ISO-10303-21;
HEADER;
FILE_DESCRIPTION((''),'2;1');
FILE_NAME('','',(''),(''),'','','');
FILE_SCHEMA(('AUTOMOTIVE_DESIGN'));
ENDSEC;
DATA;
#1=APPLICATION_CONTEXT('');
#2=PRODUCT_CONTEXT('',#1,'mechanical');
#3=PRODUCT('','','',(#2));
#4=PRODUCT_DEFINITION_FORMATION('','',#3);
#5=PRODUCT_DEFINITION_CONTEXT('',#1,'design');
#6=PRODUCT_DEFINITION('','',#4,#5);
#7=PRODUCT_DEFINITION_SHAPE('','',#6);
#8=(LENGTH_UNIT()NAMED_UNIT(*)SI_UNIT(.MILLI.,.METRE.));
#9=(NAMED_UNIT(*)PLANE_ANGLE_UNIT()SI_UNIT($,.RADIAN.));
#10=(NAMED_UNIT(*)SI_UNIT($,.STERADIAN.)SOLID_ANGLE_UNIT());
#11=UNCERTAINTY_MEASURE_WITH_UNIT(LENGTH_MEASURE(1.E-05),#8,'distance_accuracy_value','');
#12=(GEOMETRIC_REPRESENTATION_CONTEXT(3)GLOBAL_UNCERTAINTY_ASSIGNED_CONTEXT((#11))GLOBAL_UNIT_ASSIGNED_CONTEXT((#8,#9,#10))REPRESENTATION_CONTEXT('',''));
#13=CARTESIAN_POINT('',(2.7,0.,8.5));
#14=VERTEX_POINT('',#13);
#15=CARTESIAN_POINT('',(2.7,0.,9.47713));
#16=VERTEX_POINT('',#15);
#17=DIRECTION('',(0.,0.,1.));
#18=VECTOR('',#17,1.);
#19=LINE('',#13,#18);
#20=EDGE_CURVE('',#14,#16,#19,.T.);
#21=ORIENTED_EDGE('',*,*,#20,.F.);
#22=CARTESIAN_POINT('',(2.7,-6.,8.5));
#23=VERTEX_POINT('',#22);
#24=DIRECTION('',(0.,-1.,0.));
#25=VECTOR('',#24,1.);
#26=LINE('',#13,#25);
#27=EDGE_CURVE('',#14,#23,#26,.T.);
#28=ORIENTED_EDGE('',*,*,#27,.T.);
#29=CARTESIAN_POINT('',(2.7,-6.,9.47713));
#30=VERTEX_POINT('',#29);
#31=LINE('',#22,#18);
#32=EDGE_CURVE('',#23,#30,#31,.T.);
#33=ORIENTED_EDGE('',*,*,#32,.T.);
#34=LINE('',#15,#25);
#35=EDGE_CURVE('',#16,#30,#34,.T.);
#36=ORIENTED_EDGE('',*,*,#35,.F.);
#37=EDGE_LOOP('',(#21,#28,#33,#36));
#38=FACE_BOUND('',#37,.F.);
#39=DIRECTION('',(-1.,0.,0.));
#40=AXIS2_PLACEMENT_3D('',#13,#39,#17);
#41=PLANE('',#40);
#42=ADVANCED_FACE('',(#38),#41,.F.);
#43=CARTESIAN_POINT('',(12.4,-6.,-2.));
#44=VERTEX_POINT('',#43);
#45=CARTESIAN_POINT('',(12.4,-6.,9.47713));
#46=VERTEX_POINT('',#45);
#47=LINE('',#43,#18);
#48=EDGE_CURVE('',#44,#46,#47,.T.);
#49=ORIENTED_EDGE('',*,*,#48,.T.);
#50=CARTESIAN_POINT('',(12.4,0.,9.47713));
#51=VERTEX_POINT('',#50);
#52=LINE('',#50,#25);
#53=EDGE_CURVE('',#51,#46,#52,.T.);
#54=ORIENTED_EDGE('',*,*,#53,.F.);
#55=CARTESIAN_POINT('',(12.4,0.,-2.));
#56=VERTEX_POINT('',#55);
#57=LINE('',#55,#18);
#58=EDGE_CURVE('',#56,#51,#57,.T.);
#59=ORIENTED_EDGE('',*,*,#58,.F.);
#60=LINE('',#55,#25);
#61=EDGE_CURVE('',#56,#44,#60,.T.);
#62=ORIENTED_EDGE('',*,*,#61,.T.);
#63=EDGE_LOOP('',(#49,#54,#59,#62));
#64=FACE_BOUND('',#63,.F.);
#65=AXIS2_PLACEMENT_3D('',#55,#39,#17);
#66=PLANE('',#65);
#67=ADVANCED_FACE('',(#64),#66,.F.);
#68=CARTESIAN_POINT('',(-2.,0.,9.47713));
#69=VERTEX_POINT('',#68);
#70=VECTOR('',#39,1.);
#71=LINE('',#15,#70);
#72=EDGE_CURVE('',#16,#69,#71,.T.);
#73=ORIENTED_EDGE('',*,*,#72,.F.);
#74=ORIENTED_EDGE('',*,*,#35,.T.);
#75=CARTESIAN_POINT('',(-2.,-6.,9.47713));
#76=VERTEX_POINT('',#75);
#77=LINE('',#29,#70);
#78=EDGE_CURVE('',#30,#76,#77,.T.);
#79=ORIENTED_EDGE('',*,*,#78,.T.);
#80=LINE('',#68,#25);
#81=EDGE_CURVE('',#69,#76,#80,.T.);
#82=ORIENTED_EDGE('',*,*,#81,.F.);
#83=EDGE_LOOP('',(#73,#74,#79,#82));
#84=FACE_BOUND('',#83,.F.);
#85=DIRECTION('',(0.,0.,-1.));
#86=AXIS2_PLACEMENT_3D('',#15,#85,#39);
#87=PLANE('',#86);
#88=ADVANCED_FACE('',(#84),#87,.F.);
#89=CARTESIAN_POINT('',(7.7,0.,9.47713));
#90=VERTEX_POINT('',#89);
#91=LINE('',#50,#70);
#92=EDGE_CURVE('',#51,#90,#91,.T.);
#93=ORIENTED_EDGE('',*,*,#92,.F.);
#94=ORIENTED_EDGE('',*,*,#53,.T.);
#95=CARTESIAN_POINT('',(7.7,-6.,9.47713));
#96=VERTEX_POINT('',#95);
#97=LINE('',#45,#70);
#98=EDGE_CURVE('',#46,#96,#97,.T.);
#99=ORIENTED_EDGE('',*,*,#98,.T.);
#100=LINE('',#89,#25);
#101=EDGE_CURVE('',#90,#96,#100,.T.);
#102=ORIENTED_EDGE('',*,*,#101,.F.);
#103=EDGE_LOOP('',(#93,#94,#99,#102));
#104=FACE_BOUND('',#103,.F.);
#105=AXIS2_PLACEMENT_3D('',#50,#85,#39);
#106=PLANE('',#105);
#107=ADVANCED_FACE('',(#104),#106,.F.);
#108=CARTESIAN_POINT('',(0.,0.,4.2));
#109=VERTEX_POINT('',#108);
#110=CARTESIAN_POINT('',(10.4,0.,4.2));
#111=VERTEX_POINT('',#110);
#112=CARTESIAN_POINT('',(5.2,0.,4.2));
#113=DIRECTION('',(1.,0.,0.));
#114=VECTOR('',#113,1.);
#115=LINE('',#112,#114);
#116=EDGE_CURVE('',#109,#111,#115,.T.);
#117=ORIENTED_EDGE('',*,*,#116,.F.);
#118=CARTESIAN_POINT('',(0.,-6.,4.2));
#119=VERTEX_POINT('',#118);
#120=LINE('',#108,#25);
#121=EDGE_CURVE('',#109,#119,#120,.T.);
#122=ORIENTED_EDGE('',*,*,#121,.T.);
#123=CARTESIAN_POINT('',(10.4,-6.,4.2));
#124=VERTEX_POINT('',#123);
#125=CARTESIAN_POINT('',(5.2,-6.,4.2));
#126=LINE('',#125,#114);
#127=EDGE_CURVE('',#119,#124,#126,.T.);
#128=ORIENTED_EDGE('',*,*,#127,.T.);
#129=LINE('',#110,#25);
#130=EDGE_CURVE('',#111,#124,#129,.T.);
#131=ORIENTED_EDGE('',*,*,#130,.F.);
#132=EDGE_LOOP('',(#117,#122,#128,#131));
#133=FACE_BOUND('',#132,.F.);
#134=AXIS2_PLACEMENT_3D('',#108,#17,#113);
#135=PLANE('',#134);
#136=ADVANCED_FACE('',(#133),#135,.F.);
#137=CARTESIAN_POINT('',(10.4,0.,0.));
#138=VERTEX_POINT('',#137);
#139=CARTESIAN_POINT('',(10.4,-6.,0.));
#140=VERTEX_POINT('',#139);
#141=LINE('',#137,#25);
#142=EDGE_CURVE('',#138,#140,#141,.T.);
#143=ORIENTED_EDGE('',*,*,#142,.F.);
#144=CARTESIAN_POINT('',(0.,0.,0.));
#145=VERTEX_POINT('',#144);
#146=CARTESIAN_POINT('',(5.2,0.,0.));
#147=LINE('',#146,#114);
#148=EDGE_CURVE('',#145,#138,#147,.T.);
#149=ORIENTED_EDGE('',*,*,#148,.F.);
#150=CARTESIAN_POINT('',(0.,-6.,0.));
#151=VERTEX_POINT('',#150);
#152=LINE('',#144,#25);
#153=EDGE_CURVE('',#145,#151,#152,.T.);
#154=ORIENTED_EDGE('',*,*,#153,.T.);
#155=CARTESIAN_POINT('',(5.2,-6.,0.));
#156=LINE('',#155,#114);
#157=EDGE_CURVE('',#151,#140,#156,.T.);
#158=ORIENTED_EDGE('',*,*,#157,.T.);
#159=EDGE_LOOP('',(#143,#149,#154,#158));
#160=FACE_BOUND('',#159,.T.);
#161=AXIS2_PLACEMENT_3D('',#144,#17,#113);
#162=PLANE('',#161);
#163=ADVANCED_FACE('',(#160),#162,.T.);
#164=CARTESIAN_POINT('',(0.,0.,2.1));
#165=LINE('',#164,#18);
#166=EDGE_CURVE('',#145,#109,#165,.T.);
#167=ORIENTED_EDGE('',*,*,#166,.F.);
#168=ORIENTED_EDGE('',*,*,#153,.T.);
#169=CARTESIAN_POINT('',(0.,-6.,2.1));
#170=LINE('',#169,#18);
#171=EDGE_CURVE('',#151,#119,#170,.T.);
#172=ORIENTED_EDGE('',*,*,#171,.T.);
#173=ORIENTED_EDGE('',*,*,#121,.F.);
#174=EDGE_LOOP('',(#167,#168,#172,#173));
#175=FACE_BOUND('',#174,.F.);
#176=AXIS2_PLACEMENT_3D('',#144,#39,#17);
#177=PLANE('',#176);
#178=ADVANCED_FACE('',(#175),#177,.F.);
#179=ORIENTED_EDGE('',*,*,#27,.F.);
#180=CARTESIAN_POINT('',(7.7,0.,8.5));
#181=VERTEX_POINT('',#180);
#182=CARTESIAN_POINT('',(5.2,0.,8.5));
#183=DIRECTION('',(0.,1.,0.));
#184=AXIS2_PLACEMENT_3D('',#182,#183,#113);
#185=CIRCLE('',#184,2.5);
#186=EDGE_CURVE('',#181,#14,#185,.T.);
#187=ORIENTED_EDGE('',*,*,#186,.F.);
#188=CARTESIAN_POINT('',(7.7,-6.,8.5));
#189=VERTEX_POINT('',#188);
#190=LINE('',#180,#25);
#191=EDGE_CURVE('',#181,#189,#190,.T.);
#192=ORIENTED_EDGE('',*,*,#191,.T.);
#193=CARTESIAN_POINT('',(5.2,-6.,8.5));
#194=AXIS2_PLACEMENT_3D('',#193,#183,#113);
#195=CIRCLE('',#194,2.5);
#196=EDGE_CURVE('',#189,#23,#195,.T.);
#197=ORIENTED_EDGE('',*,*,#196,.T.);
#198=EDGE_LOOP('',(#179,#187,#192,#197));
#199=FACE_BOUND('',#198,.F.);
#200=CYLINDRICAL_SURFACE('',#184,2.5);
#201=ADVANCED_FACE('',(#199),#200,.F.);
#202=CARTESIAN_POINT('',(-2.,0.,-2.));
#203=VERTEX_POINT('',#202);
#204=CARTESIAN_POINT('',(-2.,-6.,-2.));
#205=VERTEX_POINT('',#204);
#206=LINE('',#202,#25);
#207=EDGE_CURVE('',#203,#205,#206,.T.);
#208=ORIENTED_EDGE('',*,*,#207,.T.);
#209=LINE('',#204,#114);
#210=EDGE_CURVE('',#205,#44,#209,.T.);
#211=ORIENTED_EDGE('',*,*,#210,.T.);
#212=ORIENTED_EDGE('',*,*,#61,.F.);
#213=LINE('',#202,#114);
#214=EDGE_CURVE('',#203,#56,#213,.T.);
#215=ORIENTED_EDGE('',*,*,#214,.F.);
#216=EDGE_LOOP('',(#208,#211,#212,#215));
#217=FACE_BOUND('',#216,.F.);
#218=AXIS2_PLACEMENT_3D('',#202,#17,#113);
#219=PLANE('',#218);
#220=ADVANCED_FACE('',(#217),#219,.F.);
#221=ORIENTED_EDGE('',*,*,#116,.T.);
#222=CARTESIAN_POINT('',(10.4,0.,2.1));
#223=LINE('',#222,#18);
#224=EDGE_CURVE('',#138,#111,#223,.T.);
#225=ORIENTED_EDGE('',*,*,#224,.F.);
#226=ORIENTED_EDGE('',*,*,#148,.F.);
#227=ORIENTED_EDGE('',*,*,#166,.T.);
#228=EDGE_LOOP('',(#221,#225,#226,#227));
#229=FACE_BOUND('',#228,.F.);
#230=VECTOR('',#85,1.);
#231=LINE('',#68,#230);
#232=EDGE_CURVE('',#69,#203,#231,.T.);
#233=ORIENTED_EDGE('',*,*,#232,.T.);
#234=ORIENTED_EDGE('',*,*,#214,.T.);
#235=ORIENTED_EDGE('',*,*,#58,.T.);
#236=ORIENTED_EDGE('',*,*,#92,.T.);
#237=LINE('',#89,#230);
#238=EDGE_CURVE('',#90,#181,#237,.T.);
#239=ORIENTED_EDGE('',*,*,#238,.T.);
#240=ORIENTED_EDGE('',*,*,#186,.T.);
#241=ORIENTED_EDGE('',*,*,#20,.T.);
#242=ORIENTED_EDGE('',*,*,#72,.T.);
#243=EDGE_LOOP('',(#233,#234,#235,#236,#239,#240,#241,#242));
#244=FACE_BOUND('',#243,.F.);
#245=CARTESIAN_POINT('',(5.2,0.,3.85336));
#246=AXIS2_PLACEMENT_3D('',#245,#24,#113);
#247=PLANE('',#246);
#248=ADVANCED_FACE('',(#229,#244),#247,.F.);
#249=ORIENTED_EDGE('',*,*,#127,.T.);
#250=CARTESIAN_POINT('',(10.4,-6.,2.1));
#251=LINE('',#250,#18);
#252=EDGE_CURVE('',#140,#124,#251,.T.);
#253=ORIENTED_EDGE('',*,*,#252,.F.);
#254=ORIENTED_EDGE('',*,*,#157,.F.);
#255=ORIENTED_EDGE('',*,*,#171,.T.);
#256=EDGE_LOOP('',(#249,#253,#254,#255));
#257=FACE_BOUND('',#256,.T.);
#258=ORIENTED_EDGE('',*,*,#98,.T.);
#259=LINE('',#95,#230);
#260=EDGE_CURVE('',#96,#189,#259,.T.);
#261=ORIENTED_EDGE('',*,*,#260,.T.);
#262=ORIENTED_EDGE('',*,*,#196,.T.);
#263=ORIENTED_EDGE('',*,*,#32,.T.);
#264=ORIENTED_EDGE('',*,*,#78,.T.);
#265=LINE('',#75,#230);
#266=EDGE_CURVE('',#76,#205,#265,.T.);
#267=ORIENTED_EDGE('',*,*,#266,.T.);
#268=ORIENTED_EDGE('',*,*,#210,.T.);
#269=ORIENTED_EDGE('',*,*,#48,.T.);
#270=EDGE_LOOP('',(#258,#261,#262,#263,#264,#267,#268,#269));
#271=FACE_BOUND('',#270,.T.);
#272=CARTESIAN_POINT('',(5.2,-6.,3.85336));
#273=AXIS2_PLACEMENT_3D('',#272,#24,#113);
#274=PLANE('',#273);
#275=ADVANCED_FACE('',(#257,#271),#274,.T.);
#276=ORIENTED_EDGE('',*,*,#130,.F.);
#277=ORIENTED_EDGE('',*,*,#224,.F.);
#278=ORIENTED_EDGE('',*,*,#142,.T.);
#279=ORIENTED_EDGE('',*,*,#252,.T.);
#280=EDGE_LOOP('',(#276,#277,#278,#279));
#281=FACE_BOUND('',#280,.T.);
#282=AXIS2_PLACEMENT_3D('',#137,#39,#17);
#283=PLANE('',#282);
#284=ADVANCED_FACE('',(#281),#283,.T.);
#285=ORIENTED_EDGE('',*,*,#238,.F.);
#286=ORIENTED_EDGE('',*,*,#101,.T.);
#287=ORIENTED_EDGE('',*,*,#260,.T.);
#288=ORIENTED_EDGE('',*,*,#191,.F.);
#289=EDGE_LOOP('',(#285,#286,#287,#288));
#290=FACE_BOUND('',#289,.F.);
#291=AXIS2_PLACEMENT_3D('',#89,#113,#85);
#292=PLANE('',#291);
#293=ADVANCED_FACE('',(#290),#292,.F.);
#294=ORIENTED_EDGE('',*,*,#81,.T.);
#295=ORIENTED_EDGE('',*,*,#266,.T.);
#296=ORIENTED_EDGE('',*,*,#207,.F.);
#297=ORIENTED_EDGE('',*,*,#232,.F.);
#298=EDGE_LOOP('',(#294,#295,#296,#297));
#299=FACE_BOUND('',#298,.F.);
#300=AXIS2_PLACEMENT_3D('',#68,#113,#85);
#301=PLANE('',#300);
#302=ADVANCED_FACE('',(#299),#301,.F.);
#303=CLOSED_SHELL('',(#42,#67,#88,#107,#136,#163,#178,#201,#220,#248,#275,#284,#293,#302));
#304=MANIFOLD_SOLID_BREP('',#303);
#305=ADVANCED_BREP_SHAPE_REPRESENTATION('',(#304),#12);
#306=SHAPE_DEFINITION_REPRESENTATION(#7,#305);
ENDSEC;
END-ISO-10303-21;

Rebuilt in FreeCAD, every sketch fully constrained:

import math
import FreeCAD as App
import Part
import Sketcher

V = App.Vector

doc = App.newDocument("Part")
body = doc.addObject("PartDesign::Body", "Body")

# Sketch on XZ plane
sketch1 = doc.addObject("Sketcher::SketchObject", "Sketch")
body.addObject(sketch1)
sketch1.AttachmentSupport = (doc.XZ_Plane, [""])
sketch1.MapMode = "FlatFace"
sketch1.addGeometry([
    Part.LineSegment(V(-2, -2, 0), V(12.4, -2, 0)),  # 0
    Part.LineSegment(V(12.4, -2, 0), V(12.4, 9.47713, 0)),  # 1
    Part.LineSegment(V(12.4, 9.47713, 0), V(7.7, 9.47713, 0)),  # 2
    Part.LineSegment(V(7.7, 9.47713, 0), V(7.7, 8.5, 0)),  # 3
    Part.ArcOfCircle(Part.Circle(V(5.2, 8.5, 0), V(0, 0, 1), 2.5), math.radians(180), math.radians(360)),  # 4
    Part.LineSegment(V(2.7, 8.5, 0), V(2.7, 9.47713, 0)),  # 5
    Part.LineSegment(V(2.7, 9.47713, 0), V(-2, 9.47713, 0)),  # 6
    Part.LineSegment(V(-2, 9.47713, 0), V(-2, -2, 0)),  # 7
    Part.LineSegment(V(10.4, 0, 0), V(0, 0, 0)),  # 8
    Part.LineSegment(V(0, 0, 0), V(0, 4.2, 0)),  # 9
    Part.LineSegment(V(0, 4.2, 0), V(10.4, 4.2, 0)),  # 10
    Part.LineSegment(V(10.4, 4.2, 0), V(10.4, 0, 0)),  # 11
], False)
sketch1.addConstraint([
    Sketcher.Constraint("Coincident", 0, 2, 1, 1),
    Sketcher.Constraint("Coincident", 1, 2, 2, 1),
    Sketcher.Constraint("Coincident", 2, 2, 3, 1),
    Sketcher.Constraint("Tangent", 3, 2, 4, 2),
    Sketcher.Constraint("Tangent", 4, 1, 5, 1),
    Sketcher.Constraint("Coincident", 5, 2, 6, 1),
    Sketcher.Constraint("Coincident", 6, 2, 7, 1),
    Sketcher.Constraint("Coincident", 7, 2, 0, 1),
    Sketcher.Constraint("Coincident", 8, 2, 9, 1),
    Sketcher.Constraint("Coincident", 9, 2, 10, 1),
    Sketcher.Constraint("Coincident", 10, 2, 11, 1),
    Sketcher.Constraint("Coincident", 11, 2, 8, 1),
    Sketcher.Constraint("Horizontal", 0),
    Sketcher.Constraint("Vertical", 1),
    Sketcher.Constraint("Horizontal", 2),
    Sketcher.Constraint("Vertical", 3),
    Sketcher.Constraint("Vertical", 5),
    Sketcher.Constraint("Horizontal", 6),
    Sketcher.Constraint("Vertical", 7),
    Sketcher.Constraint("Horizontal", 8),
    Sketcher.Constraint("Vertical", 9),
    Sketcher.Constraint("Horizontal", 10),
    Sketcher.Constraint("Vertical", 11),
    Sketcher.Constraint("Coincident", 8, 2, -1, 1),
    Sketcher.Constraint("Horizontal", 2, 2, 5, 2),
    Sketcher.Constraint("Equal", 2, 6),
    Sketcher.Constraint("Radius", 4, 2.5),
    Sketcher.Constraint("DistanceX", 0, 1, 0, 2, 14.4),
    Sketcher.Constraint("DistanceX", 8, 2, 8, 1, 10.4),
    Sketcher.Constraint("DistanceY", 9, 1, 9, 2, 4.2),
    Sketcher.Constraint("DistanceY", 0, 2, -1, 1, 2.0),
    Sketcher.Constraint("DistanceX", 6, 2, -1, 1, 2.0),
    Sketcher.Constraint("DistanceY", -1, 1, 4, 3, 8.5),
    Sketcher.Constraint("DistanceY", 1, 1, 1, 2, 11.47713),
])
pad1 = doc.addObject("PartDesign::Pad", "Pad")
body.addObject(pad1)
pad1.Profile = sketch1
pad1.Length = 6

doc.recompute()
